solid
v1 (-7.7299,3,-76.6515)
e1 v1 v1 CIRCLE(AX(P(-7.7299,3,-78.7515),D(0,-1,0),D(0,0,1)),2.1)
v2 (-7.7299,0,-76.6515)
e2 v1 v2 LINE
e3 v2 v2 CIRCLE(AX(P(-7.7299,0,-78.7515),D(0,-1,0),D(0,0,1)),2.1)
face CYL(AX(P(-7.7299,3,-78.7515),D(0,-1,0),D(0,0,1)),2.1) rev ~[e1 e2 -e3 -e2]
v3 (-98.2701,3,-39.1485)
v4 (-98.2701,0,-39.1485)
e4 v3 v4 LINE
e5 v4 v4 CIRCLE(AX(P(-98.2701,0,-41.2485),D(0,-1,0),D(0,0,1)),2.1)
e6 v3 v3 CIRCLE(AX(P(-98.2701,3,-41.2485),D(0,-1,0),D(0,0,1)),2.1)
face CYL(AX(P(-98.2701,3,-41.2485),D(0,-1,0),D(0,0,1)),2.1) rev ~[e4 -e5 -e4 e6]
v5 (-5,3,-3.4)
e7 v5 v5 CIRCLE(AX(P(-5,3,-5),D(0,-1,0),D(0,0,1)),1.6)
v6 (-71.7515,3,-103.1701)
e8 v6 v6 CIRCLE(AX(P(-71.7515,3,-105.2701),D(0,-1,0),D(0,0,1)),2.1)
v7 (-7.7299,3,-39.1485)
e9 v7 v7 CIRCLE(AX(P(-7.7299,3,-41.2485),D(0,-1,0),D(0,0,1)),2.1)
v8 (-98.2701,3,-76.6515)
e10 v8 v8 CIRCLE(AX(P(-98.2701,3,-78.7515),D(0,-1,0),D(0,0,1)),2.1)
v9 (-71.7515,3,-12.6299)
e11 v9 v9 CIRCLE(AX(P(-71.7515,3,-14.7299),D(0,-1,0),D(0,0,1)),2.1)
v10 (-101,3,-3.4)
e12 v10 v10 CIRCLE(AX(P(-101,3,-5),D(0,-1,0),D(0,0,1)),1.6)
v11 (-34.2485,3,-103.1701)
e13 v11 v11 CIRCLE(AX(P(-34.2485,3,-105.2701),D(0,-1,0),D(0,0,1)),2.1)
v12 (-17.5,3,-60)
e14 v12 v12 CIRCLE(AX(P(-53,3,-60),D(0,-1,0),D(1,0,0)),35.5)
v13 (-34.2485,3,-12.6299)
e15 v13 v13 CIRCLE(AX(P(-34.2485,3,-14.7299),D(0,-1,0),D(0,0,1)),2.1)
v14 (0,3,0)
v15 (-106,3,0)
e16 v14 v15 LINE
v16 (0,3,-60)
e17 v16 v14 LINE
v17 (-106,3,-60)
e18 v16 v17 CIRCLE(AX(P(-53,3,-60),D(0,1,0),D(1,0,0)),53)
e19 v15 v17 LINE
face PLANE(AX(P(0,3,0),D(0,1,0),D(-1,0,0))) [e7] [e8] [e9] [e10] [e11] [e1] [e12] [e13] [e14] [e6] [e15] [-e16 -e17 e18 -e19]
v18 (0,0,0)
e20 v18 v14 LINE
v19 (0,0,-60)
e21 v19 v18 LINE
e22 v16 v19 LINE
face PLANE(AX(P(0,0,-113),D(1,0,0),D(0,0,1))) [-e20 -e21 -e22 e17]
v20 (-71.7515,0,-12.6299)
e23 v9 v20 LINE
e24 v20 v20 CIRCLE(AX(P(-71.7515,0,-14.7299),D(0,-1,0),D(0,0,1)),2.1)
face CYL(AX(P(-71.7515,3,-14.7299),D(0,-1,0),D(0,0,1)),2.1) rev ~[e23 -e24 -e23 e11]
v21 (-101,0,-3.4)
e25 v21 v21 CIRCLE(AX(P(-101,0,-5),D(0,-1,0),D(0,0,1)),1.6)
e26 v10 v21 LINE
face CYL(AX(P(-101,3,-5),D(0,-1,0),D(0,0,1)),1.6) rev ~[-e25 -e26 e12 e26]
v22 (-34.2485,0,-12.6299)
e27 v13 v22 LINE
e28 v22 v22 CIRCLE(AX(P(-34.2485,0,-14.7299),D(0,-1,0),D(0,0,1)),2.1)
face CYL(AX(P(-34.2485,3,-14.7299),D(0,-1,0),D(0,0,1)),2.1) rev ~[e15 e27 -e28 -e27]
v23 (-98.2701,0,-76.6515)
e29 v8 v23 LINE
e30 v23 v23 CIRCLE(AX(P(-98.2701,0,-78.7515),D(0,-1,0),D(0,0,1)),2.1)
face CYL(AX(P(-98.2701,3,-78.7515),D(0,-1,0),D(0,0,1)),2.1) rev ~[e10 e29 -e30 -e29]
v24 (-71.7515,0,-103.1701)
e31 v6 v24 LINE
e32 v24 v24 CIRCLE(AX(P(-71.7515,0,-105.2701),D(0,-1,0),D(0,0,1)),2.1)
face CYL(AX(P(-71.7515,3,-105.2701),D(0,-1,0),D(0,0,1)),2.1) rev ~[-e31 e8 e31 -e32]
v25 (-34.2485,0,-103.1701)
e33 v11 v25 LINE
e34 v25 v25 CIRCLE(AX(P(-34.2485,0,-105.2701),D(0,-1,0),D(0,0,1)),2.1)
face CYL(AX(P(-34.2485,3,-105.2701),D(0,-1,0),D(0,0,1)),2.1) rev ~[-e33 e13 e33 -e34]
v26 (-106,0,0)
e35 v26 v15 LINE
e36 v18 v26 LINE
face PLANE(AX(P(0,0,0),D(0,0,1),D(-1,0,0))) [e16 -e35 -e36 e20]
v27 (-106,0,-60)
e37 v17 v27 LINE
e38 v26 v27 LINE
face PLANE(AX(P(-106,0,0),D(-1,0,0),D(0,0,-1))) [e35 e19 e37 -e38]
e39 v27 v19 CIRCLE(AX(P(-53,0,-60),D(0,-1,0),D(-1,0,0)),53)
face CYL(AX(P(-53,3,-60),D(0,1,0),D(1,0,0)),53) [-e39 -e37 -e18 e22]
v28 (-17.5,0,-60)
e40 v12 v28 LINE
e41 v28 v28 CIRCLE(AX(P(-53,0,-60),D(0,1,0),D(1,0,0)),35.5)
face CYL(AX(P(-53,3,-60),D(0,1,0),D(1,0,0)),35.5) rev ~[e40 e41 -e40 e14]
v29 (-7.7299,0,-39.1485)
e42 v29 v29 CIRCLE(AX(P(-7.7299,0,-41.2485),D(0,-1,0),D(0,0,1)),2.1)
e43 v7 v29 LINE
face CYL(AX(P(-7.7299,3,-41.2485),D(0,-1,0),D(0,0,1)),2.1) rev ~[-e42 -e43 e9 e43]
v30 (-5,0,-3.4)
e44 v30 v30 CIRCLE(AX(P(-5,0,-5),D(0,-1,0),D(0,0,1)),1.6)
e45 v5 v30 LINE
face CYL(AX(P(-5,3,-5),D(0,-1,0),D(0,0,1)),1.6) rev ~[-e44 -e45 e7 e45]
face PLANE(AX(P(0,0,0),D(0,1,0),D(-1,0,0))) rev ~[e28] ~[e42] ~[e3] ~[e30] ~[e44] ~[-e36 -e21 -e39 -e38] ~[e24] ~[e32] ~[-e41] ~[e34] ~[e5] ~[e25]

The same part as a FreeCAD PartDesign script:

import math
import FreeCAD as App
import Part
import Sketcher

V = App.Vector


def add_polygon(sketch, points):
    """Adds a closed chain of lines whose ends are joined by coincident constraints."""
    first, n = sketch.GeometryCount, len(points)
    for a, b in zip(points, points[1:] + points[:1]):
        sketch.addGeometry(Part.LineSegment(App.Vector(*a, 0), App.Vector(*b, 0)), False)
    for i in range(n):
        sketch.addConstraint(Sketcher.Constraint("Coincident", first + i, 2, first + (i + 1) % n, 1))

doc = App.newDocument("Part")
params = doc.addObject("Spreadsheet::Sheet", "Params")
for row, (alias, value) in enumerate([
    ("sketch1_width", "106 mm"),
    ("sketch1_height", "113 mm"),
    ("pad1_length", "3 mm"),
    ("sketch2_diameter", "71 mm"),
    ("sketch2_radius", "53 mm"),
    ("pocket1_length", "3 mm"),
    ("sketch3_diameter", "3.2 mm"),
    ("hole_diameter", "3.2 mm"),
    ("sketch4_diameter", "4.2 mm"),
    ("hole2_diameter", "4.2 mm"),
], start=1):
    params.set(f"A{row}", alias)
    params.set(f"B{row}", "=" + value)
    params.setAlias(f"B{row}", alias)

body = doc.addObject("PartDesign::Body", "Body")

# Sketch on XZ plane
sketch1 = body.newObject("Sketcher::SketchObject", "Sketch")
sketch1.AttachmentSupport = (doc.getObject("XZ_Plane"), [""])
sketch1.MapMode = "FlatFace"
add_polygon(sketch1, [(-106, 0), (0, 0), (0, -113), (-106, -113)])  # lines 0-3
sketch1.addConstraint([
    Sketcher.Constraint("Horizontal", 0),
    Sketcher.Constraint("Vertical", 1),
    Sketcher.Constraint("Horizontal", 2),
    Sketcher.Constraint("Vertical", 3),
    Sketcher.Constraint("Coincident", 0, 2, -1, 1),
    Sketcher.Constraint("DistanceX", 0, 1, 0, 2, 106.0),
    Sketcher.Constraint("DistanceY", 1, 2, 1, 1, 113.0),
])
sketch1.setExpression("Constraints[9]", "Params.sketch1_width")
sketch1.setExpression("Constraints[10]", "Params.sketch1_height")
pad1 = body.newObject("PartDesign::Pad", "Pad")
pad1.Profile = sketch1
pad1.setExpression("Length", "Params.pad1_length")
pad1.Reversed = True

# Sketch on XZ plane
sketch2 = body.newObject("Sketcher::SketchObject", "Sketch001")
sketch2.AttachmentSupport = (doc.getObject("XZ_Plane"), [""])
sketch2.MapMode = "FlatFace"
sketch2.AttachmentOffset = App.Placement(V(0, 0, -3), App.Rotation())
sketch2.addGeometry([
    Part.LineSegment(V(-53, -113, 0), V(-106, -113, 0)),  # 0
    Part.LineSegment(V(-106, -113, 0), V(-106, -60, 0)),  # 1
    Part.ArcOfCircle(Part.Circle(V(-53, -60, 0), V(0, 0, 1), 53), math.radians(180), math.radians(270)),  # 2
    Part.LineSegment(V(0, -113, 0), V(-53, -113, 0)),  # 3
    Part.ArcOfCircle(Part.Circle(V(-53, -60, 0), V(0, 0, 1), 53), math.radians(-90), math.radians(0)),  # 4
    Part.LineSegment(V(0, -60, 0), V(0, -113, 0)),  # 5
    Part.Circle(V(-53, -60, 0), V(0, 0, 1), 36),  # 6
], False)
sketch2.addConstraint([
    Sketcher.Constraint("Coincident", 0, 2, 1, 1),
    Sketcher.Constraint("Tangent", 1, 2, 2, 1),
    Sketcher.Constraint("Tangent", 2, 2, 0, 1),
    Sketcher.Constraint("Tangent", 3, 2, 4, 1),
    Sketcher.Constraint("Tangent", 4, 2, 5, 1),
    Sketcher.Constraint("Coincident", 5, 2, 3, 1),
    Sketcher.Constraint("Horizontal", 0),
    Sketcher.Constraint("Vertical", 1),
    Sketcher.Constraint("Horizontal", 3),
    Sketcher.Constraint("Vertical", 5),
    Sketcher.Constraint("Coincident", 4, 3, 2, 3),
    Sketcher.Constraint("Coincident", 6, 3, 2, 3),
    Sketcher.Constraint("Equal", 2, 4),
    Sketcher.Constraint("PointOnObject", 4, 2, -2),
    Sketcher.Constraint("Diameter", 6, 71.0),
    Sketcher.Constraint("Radius", 2, 53.0),
    Sketcher.Constraint("DistanceY", 2, 3, -1, 1, 60.0),
])
sketch2.setExpression("Constraints[14]", "Params.sketch2_diameter")
sketch2.setExpression("Constraints[15]", "Params.sketch2_radius")
pocket1 = body.newObject("PartDesign::Pocket", "Pocket")
pocket1.Profile = sketch2
pocket1.setExpression("Length", "Params.pocket1_length")
pocket1.Reversed = True

# Sketch on XZ plane
sketch3 = body.newObject("Sketcher::SketchObject", "Sketch002")
sketch3.AttachmentSupport = (doc.getObject("XZ_Plane"), [""])
sketch3.MapMode = "FlatFace"
sketch3.AttachmentOffset = App.Placement(V(0, 0, -3), App.Rotation())
sketch3.addGeometry([
    Part.Circle(V(-101, -5, 0), V(0, 0, 1), 1.6),
    Part.Circle(V(-5, -5, 0), V(0, 0, 1), 1.6),
], False)
sketch3.addConstraint([
    Sketcher.Constraint("Equal", 0, 1),
    Sketcher.Constraint("Horizontal", 0, 3, 1, 3),
    Sketcher.Constraint("Diameter", 0, 3.2),
    Sketcher.Constraint("DistanceX", 0, 3, -1, 1, 101.0),
    Sketcher.Constraint("DistanceY", 0, 3, -1, 1, 5.0),
    Sketcher.Constraint("DistanceX", 1, 3, -1, 1, 5.0),
])
sketch3.setExpression("Constraints[2]", "Params.sketch3_diameter")
doc.recompute()
hole = body.newObject("PartDesign::Hole", "Hole")
hole.Profile = sketch3
hole.ThreadType = "None"
hole.setExpression("Diameter", "Params.hole_diameter")
hole.DepthType = "ThroughAll"
hole.Reversed = True

# Sketch on XZ plane
sketch4 = body.newObject("Sketcher::SketchObject", "Sketch003")
sketch4.AttachmentSupport = (doc.getObject("XZ_Plane"), [""])
sketch4.MapMode = "FlatFace"
sketch4.AttachmentOffset = App.Placement(V(0, 0, -3), App.Rotation())
sketch4.addGeometry([
    Part.Circle(V(-7.7, -78.8, 0), V(0, 0, 1), 2.1),  # 0
    Part.Circle(V(-34.2, -105.3, 0), V(0, 0, 1), 2.1),  # 1
    Part.Circle(V(-71.8, -105.3, 0), V(0, 0, 1), 2.1),  # 2
    Part.Circle(V(-98.3, -78.8, 0), V(0, 0, 1), 2.1),  # 3
    Part.Circle(V(-98.3, -41.2, 0), V(0, 0, 1), 2.1),  # 4
    Part.Circle(V(-71.8, -14.7, 0), V(0, 0, 1), 2.1),  # 5
    Part.Circle(V(-34.2, -14.7, 0), V(0, 0, 1), 2.1),  # 6
    Part.Circle(V(-7.7, -41.2, 0), V(0, 0, 1), 2.1),  # 7
], False)
sketch4.addConstraint([
    Sketcher.Constraint("Equal", 0, 1),
    Sketcher.Constraint("Equal", 1, 2),
    Sketcher.Constraint("Equal", 2, 3),
    Sketcher.Constraint("Equal", 3, 4),
    Sketcher.Constraint("Equal", 4, 5),
    Sketcher.Constraint("Equal", 5, 6),
    Sketcher.Constraint("Equal", 6, 7),
    Sketcher.Constraint("Horizontal", 1, 3, 2, 3),
    Sketcher.Constraint("Horizontal", 0, 3, 3, 3),
    Sketcher.Constraint("Horizontal", 5, 3, 6, 3),
    Sketcher.Constraint("Horizontal", 4, 3, 7, 3),
    Sketcher.Constraint("Vertical", 3, 3, 4, 3),
    Sketcher.Constraint("Vertical", 2, 3, 5, 3),
    Sketcher.Constraint("Vertical", 1, 3, 6, 3),
    Sketcher.Constraint("Vertical", 0, 3, 7, 3),
    Sketcher.Constraint("Diameter", 0, 4.2),
    Sketcher.Constraint("DistanceX", 0, 3, -1, 1, 7.73),
    Sketcher.Constraint("DistanceY", 1, 3, -1, 1, 105.27),
    Sketcher.Constraint("DistanceX", 3, 3, -1, 1, 98.27),
    Sketcher.Constraint("DistanceY", 5, 3, -1, 1, 14.73),
    Sketcher.Constraint("DistanceX", 2, 3, 1, 3, 37.503),
    Sketcher.Constraint("DistanceY", 3, 3, 4, 3, 37.503),
    Sketcher.Constraint("DistanceY", 0, 3, -1, 1, 78.7515),
    Sketcher.Constraint("DistanceX", 1, 3, -1, 1, 34.2485),
])
sketch4.setExpression("Constraints[15]", "Params.sketch4_diameter")
doc.recompute()
hole2 = body.newObject("PartDesign::Hole", "Hole001")
hole2.Profile = sketch4
hole2.ThreadType = "None"
hole2.setExpression("Diameter", "Params.hole2_diameter")
hole2.DepthType = "ThroughAll"
hole2.Reversed = True

doc.recompute()
